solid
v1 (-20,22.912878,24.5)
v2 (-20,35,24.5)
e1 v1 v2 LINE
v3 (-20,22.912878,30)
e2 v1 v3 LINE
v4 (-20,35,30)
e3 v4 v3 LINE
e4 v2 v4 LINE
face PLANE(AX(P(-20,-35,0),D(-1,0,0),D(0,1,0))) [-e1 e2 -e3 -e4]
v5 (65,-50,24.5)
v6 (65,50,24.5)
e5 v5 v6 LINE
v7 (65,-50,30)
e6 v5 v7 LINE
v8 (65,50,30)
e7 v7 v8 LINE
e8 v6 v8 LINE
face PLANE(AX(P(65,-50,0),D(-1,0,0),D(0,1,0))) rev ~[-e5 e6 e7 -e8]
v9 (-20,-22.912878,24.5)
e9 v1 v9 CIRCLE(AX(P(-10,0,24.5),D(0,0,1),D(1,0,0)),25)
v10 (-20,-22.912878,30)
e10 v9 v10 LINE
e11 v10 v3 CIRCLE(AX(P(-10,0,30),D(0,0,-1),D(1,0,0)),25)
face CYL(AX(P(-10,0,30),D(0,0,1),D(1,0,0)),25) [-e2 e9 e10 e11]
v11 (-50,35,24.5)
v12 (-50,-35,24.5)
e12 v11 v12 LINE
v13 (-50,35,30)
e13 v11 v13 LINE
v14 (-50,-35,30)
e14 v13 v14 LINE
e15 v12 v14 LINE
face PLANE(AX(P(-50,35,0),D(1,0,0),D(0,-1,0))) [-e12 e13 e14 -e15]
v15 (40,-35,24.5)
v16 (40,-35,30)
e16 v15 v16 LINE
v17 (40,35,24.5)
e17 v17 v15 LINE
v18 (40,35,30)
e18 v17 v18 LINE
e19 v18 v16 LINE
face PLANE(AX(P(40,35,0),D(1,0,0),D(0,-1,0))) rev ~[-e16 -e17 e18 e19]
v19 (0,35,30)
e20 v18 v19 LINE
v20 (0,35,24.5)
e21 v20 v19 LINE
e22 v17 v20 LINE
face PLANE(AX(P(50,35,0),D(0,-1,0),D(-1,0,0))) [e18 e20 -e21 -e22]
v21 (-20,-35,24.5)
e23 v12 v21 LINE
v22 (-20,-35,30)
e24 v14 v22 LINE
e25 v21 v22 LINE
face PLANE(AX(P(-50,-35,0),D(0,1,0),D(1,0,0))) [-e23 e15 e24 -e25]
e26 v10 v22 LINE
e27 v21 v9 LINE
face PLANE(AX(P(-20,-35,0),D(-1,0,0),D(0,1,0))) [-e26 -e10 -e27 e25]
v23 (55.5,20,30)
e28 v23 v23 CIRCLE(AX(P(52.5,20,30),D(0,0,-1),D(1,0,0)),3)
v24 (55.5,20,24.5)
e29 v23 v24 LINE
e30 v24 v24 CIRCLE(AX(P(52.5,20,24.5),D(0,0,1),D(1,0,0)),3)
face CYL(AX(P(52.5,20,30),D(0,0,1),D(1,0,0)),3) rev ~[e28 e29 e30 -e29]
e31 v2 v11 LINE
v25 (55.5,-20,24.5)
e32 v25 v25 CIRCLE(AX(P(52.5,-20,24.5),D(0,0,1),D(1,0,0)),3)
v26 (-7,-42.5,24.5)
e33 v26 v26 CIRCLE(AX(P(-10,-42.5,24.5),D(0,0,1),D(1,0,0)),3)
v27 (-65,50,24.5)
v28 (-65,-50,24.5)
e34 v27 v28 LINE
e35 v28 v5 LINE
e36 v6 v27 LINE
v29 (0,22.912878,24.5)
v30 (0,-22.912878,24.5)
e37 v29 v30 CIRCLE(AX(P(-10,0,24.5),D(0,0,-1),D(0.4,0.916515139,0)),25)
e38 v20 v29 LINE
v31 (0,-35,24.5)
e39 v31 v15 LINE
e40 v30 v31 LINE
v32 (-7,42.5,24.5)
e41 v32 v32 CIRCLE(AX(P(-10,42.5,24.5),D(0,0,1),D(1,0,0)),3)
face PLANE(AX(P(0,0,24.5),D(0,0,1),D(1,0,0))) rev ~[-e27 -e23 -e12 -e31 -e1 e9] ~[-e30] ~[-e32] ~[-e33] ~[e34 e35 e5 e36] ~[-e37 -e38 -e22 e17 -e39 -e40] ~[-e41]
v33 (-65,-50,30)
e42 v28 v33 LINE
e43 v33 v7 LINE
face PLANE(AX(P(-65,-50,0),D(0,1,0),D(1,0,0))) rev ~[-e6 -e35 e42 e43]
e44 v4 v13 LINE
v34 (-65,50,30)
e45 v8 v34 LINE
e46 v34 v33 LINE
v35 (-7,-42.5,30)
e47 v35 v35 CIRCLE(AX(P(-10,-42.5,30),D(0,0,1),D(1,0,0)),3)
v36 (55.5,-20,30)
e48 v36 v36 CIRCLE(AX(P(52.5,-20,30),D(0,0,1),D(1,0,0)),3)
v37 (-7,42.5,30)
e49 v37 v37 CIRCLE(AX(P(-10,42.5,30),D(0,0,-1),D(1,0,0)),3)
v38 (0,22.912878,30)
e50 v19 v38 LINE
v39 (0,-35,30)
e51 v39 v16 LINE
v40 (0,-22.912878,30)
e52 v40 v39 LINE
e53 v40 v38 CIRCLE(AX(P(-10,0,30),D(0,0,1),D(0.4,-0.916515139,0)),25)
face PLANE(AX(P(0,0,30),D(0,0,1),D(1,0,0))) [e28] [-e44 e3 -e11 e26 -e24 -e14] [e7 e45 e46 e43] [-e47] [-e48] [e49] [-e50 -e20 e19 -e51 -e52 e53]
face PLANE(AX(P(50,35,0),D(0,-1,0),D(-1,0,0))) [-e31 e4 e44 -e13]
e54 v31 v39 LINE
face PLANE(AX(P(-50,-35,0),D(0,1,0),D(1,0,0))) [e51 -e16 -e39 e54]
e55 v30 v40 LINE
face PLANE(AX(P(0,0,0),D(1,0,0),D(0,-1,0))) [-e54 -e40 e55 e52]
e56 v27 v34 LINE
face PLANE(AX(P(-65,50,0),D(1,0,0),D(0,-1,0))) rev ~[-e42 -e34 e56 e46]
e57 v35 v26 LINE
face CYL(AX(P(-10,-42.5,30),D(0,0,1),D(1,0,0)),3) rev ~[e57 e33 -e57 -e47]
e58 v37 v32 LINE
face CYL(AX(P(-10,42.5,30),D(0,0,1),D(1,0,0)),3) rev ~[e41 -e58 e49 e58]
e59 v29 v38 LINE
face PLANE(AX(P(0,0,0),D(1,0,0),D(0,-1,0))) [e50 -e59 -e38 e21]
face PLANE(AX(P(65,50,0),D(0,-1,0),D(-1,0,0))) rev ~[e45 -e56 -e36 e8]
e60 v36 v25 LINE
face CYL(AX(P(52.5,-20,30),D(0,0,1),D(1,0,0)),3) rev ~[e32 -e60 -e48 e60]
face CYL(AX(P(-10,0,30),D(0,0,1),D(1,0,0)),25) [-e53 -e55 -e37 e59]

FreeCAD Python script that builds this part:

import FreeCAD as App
import Part
import Sketcher

V = App.Vector
Q = App.Units.Quantity


def add_polygon(sketch, points):
    """Adds a closed chain of lines whose ends are joined by coincident constraints."""
    first, n = sketch.GeometryCount, len(points)
    for a, b in zip(points, points[1:] + points[:1]):
        sketch.addGeometry(Part.LineSegment(App.Vector(*a, 0), App.Vector(*b, 0)), False)
    for i in range(n):
        sketch.addConstraint(Sketcher.Constraint("Coincident", first + i, 2, first + (i + 1) % n, 1))

doc = App.newDocument("Part")
body = doc.addObject("PartDesign::Body", "Body")

sketch1 = doc.addObject("Sketcher::SketchObject", "Sketch")
body.addObject(sketch1)
sketch1.AttachmentSupport = (doc.XY_Plane, [""])
sketch1.MapMode = "FlatFace"
add_polygon(sketch1, [(-65, 50), (-65, -50), (65, -50), (65, 50)])
add_polygon(sketch1, [(50, -35), (-50, -35), (-50, 35), (50, 35)])
sketch1.addConstraint([
    Sketcher.Constraint("Vertical", 0),
    Sketcher.Constraint("Horizontal", 1),
    Sketcher.Constraint("Vertical", 2),
    Sketcher.Constraint("Horizontal", 3),
    Sketcher.Constraint("Horizontal", 4),
    Sketcher.Constraint("Vertical", 5),
    Sketcher.Constraint("Horizontal", 6),
    Sketcher.Constraint("Vertical", 7),
    Sketcher.Constraint("Symmetric", 0, 2, 2, 2, -1, 1),
    Sketcher.Constraint("Symmetric", 4, 2, 6, 2, -1, 1),
    Sketcher.Constraint("Equal", 6, 0),
    Sketcher.Constraint("DistanceX", 1, 1, 1, 2, Q("130 mm")),
    Sketcher.Constraint("DistanceX", 4, 2, 4, 1, Q("100 mm")),
    Sketcher.Constraint("DistanceY", 5, 1, 5, 2, Q("70 mm")),
])
pad1 = doc.addObject("PartDesign::Pad", "Pad")
body.addObject(pad1)
pad1.Profile = sketch1
pad1.Length = 30

sketch2 = doc.addObject("Sketcher::SketchObject", "Sketch001")
body.addObject(sketch2)
sketch2.AttachmentSupport = (doc.XY_Plane, [""])
sketch2.MapMode = "FlatFace"
add_polygon(sketch2, [(50, 35), (40, 35), (40, -35), (50, -35)])
sketch2.addConstraint([
    Sketcher.Constraint("Horizontal", 0),
    Sketcher.Constraint("Vertical", 1),
    Sketcher.Constraint("Horizontal", 2),
    Sketcher.Constraint("Vertical", 3),
    Sketcher.Constraint("DistanceX", 0, 2, 0, 1, Q("10 mm")),
    Sketcher.Constraint("DistanceY", 1, 2, 1, 1, Q("70 mm")),
    Sketcher.Constraint("DistanceX", -1, 1, 0, 2, Q("40 mm")),
    Sketcher.Constraint("DistanceY", -1, 1, 0, 2, Q("35 mm")),
])
pad2 = doc.addObject("PartDesign::Pad", "Pad001")
body.addObject(pad2)
pad2.Profile = sketch2
pad2.Length = 30

sketch3 = doc.addObject("Sketcher::SketchObject", "Sketch002")
body.addObject(sketch3)
sketch3.AttachmentSupport = (doc.XY_Plane, [""])
sketch3.MapMode = "FlatFace"
add_polygon(sketch3, [(0, -35), (0, 35), (-20, 35), (-20, -35)])
sketch3.addConstraint([
    Sketcher.Constraint("Vertical", 0),
    Sketcher.Constraint("Horizontal", 1),
    Sketcher.Constraint("Vertical", 2),
    Sketcher.Constraint("Horizontal", 3),
    Sketcher.Constraint("Symmetric", 0, 2, 3, 2, -1, 1),
    Sketcher.Constraint("DistanceX", 1, 2, 1, 1, Q("20 mm")),
    Sketcher.Constraint("DistanceY", 0, 1, 0, 2, Q("70 mm")),
])
pad3 = doc.addObject("PartDesign::Pad", "Pad002")
body.addObject(pad3)
pad3.Profile = sketch3
pad3.Length = 30

sketch4 = doc.addObject("Sketcher::SketchObject", "Sketch003")
body.addObject(sketch4)
sketch4.AttachmentSupport = (doc.XY_Plane, [""])
sketch4.MapMode = "FlatFace"
sketch4.AttachmentOffset = App.Placement(V(0, 0, 15), App.Rotation())
add_polygon(sketch4, [(65, 50), (-65, 50), (-65, -50), (65, -50)])
sketch4.addConstraint([
    Sketcher.Constraint("Horizontal", 0),
    Sketcher.Constraint("Vertical", 1),
    Sketcher.Constraint("Horizontal", 2),
    Sketcher.Constraint("Vertical", 3),
    Sketcher.Constraint("Symmetric", 0, 2, 2, 2, -1, 1),
    Sketcher.Constraint("DistanceX", 0, 2, 0, 1, Q("130 mm")),
    Sketcher.Constraint("DistanceY", 1, 2, 1, 1, Q("100 mm")),
])
pocket1 = doc.addObject("PartDesign::Pocket", "Pocket")
body.addObject(pocket1)
pocket1.Profile = sketch4
pocket1.Type = "TwoLengths"
pocket1.Length = 9.5
pocket1.Length2 = 20
pocket1.Reversed = True

sketch5 = doc.addObject("Sketcher::SketchObject", "Sketch004")
body.addObject(sketch5)
sketch5.AttachmentSupport = (doc.XY_Plane, [""])
sketch5.MapMode = "FlatFace"
sketch5.AttachmentOffset = App.Placement(V(0, 0, 30), App.Rotation())
sketch5.addGeometry([
    Part.Circle(V(52.5, 20, 0), V(0, 0, 1), 3),
    Part.Circle(V(-10, 42.5, 0), V(0, 0, 1), 3),
    Part.Circle(V(-10, -42.5, 0), V(0, 0, 1), 3),
    Part.Circle(V(52.5, -20, 0), V(0, 0, 1), 3),
], False)
sketch5.addConstraint([
    Sketcher.Constraint("Equal", 0, 1),
    Sketcher.Constraint("Equal", 1, 2),
    Sketcher.Constraint("Equal", 2, 3),
    Sketcher.Constraint("Symmetric", 1, 3, 2, 3, -1),
    Sketcher.Constraint("Symmetric", 0, 3, 3, 3, -1),
    Sketcher.Constraint("Diameter", 0, Q("6 mm")),
    Sketcher.Constraint("DistanceY", -1, 1, 0, 3, Q("20 mm")),
    Sketcher.Constraint("DistanceX", 1, 3, -1, 1, Q("10 mm")),
    Sketcher.Constraint("DistanceY", 2, 3, 1, 3, Q("85 mm")),
    Sketcher.Constraint("DistanceX", -1, 1, 0, 3, Q("52.5 mm")),
])
pocket2 = doc.addObject("PartDesign::Pocket", "Pocket001")
body.addObject(pocket2)
pocket2.Profile = sketch5
pocket2.Length = 9.5

sketch6 = doc.addObject("Sketcher::SketchObject", "Sketch005")
body.addObject(sketch6)
sketch6.AttachmentSupport = (doc.XY_Plane, [""])
sketch6.MapMode = "FlatFace"
sketch6.AttachmentOffset = App.Placement(V(0, 0, 30), App.Rotation())
sketch6.addGeometry(Part.Circle(V(-10, 0, 0), V(0, 0, 1), 25), False)
sketch6.addConstraint([
    Sketcher.Constraint("PointOnObject", 0, 3, -1),
    Sketcher.Constraint("Diameter", 0, Q("50 mm")),
    Sketcher.Constraint("DistanceX", 0, 3, -1, 1, Q("10 mm")),
])
pad4 = doc.addObject("PartDesign::Pad", "Pad003")
body.addObject(pad4)
pad4.Profile = sketch6
pad4.Length = 5.5
pad4.Reversed = True

doc.recompute()
